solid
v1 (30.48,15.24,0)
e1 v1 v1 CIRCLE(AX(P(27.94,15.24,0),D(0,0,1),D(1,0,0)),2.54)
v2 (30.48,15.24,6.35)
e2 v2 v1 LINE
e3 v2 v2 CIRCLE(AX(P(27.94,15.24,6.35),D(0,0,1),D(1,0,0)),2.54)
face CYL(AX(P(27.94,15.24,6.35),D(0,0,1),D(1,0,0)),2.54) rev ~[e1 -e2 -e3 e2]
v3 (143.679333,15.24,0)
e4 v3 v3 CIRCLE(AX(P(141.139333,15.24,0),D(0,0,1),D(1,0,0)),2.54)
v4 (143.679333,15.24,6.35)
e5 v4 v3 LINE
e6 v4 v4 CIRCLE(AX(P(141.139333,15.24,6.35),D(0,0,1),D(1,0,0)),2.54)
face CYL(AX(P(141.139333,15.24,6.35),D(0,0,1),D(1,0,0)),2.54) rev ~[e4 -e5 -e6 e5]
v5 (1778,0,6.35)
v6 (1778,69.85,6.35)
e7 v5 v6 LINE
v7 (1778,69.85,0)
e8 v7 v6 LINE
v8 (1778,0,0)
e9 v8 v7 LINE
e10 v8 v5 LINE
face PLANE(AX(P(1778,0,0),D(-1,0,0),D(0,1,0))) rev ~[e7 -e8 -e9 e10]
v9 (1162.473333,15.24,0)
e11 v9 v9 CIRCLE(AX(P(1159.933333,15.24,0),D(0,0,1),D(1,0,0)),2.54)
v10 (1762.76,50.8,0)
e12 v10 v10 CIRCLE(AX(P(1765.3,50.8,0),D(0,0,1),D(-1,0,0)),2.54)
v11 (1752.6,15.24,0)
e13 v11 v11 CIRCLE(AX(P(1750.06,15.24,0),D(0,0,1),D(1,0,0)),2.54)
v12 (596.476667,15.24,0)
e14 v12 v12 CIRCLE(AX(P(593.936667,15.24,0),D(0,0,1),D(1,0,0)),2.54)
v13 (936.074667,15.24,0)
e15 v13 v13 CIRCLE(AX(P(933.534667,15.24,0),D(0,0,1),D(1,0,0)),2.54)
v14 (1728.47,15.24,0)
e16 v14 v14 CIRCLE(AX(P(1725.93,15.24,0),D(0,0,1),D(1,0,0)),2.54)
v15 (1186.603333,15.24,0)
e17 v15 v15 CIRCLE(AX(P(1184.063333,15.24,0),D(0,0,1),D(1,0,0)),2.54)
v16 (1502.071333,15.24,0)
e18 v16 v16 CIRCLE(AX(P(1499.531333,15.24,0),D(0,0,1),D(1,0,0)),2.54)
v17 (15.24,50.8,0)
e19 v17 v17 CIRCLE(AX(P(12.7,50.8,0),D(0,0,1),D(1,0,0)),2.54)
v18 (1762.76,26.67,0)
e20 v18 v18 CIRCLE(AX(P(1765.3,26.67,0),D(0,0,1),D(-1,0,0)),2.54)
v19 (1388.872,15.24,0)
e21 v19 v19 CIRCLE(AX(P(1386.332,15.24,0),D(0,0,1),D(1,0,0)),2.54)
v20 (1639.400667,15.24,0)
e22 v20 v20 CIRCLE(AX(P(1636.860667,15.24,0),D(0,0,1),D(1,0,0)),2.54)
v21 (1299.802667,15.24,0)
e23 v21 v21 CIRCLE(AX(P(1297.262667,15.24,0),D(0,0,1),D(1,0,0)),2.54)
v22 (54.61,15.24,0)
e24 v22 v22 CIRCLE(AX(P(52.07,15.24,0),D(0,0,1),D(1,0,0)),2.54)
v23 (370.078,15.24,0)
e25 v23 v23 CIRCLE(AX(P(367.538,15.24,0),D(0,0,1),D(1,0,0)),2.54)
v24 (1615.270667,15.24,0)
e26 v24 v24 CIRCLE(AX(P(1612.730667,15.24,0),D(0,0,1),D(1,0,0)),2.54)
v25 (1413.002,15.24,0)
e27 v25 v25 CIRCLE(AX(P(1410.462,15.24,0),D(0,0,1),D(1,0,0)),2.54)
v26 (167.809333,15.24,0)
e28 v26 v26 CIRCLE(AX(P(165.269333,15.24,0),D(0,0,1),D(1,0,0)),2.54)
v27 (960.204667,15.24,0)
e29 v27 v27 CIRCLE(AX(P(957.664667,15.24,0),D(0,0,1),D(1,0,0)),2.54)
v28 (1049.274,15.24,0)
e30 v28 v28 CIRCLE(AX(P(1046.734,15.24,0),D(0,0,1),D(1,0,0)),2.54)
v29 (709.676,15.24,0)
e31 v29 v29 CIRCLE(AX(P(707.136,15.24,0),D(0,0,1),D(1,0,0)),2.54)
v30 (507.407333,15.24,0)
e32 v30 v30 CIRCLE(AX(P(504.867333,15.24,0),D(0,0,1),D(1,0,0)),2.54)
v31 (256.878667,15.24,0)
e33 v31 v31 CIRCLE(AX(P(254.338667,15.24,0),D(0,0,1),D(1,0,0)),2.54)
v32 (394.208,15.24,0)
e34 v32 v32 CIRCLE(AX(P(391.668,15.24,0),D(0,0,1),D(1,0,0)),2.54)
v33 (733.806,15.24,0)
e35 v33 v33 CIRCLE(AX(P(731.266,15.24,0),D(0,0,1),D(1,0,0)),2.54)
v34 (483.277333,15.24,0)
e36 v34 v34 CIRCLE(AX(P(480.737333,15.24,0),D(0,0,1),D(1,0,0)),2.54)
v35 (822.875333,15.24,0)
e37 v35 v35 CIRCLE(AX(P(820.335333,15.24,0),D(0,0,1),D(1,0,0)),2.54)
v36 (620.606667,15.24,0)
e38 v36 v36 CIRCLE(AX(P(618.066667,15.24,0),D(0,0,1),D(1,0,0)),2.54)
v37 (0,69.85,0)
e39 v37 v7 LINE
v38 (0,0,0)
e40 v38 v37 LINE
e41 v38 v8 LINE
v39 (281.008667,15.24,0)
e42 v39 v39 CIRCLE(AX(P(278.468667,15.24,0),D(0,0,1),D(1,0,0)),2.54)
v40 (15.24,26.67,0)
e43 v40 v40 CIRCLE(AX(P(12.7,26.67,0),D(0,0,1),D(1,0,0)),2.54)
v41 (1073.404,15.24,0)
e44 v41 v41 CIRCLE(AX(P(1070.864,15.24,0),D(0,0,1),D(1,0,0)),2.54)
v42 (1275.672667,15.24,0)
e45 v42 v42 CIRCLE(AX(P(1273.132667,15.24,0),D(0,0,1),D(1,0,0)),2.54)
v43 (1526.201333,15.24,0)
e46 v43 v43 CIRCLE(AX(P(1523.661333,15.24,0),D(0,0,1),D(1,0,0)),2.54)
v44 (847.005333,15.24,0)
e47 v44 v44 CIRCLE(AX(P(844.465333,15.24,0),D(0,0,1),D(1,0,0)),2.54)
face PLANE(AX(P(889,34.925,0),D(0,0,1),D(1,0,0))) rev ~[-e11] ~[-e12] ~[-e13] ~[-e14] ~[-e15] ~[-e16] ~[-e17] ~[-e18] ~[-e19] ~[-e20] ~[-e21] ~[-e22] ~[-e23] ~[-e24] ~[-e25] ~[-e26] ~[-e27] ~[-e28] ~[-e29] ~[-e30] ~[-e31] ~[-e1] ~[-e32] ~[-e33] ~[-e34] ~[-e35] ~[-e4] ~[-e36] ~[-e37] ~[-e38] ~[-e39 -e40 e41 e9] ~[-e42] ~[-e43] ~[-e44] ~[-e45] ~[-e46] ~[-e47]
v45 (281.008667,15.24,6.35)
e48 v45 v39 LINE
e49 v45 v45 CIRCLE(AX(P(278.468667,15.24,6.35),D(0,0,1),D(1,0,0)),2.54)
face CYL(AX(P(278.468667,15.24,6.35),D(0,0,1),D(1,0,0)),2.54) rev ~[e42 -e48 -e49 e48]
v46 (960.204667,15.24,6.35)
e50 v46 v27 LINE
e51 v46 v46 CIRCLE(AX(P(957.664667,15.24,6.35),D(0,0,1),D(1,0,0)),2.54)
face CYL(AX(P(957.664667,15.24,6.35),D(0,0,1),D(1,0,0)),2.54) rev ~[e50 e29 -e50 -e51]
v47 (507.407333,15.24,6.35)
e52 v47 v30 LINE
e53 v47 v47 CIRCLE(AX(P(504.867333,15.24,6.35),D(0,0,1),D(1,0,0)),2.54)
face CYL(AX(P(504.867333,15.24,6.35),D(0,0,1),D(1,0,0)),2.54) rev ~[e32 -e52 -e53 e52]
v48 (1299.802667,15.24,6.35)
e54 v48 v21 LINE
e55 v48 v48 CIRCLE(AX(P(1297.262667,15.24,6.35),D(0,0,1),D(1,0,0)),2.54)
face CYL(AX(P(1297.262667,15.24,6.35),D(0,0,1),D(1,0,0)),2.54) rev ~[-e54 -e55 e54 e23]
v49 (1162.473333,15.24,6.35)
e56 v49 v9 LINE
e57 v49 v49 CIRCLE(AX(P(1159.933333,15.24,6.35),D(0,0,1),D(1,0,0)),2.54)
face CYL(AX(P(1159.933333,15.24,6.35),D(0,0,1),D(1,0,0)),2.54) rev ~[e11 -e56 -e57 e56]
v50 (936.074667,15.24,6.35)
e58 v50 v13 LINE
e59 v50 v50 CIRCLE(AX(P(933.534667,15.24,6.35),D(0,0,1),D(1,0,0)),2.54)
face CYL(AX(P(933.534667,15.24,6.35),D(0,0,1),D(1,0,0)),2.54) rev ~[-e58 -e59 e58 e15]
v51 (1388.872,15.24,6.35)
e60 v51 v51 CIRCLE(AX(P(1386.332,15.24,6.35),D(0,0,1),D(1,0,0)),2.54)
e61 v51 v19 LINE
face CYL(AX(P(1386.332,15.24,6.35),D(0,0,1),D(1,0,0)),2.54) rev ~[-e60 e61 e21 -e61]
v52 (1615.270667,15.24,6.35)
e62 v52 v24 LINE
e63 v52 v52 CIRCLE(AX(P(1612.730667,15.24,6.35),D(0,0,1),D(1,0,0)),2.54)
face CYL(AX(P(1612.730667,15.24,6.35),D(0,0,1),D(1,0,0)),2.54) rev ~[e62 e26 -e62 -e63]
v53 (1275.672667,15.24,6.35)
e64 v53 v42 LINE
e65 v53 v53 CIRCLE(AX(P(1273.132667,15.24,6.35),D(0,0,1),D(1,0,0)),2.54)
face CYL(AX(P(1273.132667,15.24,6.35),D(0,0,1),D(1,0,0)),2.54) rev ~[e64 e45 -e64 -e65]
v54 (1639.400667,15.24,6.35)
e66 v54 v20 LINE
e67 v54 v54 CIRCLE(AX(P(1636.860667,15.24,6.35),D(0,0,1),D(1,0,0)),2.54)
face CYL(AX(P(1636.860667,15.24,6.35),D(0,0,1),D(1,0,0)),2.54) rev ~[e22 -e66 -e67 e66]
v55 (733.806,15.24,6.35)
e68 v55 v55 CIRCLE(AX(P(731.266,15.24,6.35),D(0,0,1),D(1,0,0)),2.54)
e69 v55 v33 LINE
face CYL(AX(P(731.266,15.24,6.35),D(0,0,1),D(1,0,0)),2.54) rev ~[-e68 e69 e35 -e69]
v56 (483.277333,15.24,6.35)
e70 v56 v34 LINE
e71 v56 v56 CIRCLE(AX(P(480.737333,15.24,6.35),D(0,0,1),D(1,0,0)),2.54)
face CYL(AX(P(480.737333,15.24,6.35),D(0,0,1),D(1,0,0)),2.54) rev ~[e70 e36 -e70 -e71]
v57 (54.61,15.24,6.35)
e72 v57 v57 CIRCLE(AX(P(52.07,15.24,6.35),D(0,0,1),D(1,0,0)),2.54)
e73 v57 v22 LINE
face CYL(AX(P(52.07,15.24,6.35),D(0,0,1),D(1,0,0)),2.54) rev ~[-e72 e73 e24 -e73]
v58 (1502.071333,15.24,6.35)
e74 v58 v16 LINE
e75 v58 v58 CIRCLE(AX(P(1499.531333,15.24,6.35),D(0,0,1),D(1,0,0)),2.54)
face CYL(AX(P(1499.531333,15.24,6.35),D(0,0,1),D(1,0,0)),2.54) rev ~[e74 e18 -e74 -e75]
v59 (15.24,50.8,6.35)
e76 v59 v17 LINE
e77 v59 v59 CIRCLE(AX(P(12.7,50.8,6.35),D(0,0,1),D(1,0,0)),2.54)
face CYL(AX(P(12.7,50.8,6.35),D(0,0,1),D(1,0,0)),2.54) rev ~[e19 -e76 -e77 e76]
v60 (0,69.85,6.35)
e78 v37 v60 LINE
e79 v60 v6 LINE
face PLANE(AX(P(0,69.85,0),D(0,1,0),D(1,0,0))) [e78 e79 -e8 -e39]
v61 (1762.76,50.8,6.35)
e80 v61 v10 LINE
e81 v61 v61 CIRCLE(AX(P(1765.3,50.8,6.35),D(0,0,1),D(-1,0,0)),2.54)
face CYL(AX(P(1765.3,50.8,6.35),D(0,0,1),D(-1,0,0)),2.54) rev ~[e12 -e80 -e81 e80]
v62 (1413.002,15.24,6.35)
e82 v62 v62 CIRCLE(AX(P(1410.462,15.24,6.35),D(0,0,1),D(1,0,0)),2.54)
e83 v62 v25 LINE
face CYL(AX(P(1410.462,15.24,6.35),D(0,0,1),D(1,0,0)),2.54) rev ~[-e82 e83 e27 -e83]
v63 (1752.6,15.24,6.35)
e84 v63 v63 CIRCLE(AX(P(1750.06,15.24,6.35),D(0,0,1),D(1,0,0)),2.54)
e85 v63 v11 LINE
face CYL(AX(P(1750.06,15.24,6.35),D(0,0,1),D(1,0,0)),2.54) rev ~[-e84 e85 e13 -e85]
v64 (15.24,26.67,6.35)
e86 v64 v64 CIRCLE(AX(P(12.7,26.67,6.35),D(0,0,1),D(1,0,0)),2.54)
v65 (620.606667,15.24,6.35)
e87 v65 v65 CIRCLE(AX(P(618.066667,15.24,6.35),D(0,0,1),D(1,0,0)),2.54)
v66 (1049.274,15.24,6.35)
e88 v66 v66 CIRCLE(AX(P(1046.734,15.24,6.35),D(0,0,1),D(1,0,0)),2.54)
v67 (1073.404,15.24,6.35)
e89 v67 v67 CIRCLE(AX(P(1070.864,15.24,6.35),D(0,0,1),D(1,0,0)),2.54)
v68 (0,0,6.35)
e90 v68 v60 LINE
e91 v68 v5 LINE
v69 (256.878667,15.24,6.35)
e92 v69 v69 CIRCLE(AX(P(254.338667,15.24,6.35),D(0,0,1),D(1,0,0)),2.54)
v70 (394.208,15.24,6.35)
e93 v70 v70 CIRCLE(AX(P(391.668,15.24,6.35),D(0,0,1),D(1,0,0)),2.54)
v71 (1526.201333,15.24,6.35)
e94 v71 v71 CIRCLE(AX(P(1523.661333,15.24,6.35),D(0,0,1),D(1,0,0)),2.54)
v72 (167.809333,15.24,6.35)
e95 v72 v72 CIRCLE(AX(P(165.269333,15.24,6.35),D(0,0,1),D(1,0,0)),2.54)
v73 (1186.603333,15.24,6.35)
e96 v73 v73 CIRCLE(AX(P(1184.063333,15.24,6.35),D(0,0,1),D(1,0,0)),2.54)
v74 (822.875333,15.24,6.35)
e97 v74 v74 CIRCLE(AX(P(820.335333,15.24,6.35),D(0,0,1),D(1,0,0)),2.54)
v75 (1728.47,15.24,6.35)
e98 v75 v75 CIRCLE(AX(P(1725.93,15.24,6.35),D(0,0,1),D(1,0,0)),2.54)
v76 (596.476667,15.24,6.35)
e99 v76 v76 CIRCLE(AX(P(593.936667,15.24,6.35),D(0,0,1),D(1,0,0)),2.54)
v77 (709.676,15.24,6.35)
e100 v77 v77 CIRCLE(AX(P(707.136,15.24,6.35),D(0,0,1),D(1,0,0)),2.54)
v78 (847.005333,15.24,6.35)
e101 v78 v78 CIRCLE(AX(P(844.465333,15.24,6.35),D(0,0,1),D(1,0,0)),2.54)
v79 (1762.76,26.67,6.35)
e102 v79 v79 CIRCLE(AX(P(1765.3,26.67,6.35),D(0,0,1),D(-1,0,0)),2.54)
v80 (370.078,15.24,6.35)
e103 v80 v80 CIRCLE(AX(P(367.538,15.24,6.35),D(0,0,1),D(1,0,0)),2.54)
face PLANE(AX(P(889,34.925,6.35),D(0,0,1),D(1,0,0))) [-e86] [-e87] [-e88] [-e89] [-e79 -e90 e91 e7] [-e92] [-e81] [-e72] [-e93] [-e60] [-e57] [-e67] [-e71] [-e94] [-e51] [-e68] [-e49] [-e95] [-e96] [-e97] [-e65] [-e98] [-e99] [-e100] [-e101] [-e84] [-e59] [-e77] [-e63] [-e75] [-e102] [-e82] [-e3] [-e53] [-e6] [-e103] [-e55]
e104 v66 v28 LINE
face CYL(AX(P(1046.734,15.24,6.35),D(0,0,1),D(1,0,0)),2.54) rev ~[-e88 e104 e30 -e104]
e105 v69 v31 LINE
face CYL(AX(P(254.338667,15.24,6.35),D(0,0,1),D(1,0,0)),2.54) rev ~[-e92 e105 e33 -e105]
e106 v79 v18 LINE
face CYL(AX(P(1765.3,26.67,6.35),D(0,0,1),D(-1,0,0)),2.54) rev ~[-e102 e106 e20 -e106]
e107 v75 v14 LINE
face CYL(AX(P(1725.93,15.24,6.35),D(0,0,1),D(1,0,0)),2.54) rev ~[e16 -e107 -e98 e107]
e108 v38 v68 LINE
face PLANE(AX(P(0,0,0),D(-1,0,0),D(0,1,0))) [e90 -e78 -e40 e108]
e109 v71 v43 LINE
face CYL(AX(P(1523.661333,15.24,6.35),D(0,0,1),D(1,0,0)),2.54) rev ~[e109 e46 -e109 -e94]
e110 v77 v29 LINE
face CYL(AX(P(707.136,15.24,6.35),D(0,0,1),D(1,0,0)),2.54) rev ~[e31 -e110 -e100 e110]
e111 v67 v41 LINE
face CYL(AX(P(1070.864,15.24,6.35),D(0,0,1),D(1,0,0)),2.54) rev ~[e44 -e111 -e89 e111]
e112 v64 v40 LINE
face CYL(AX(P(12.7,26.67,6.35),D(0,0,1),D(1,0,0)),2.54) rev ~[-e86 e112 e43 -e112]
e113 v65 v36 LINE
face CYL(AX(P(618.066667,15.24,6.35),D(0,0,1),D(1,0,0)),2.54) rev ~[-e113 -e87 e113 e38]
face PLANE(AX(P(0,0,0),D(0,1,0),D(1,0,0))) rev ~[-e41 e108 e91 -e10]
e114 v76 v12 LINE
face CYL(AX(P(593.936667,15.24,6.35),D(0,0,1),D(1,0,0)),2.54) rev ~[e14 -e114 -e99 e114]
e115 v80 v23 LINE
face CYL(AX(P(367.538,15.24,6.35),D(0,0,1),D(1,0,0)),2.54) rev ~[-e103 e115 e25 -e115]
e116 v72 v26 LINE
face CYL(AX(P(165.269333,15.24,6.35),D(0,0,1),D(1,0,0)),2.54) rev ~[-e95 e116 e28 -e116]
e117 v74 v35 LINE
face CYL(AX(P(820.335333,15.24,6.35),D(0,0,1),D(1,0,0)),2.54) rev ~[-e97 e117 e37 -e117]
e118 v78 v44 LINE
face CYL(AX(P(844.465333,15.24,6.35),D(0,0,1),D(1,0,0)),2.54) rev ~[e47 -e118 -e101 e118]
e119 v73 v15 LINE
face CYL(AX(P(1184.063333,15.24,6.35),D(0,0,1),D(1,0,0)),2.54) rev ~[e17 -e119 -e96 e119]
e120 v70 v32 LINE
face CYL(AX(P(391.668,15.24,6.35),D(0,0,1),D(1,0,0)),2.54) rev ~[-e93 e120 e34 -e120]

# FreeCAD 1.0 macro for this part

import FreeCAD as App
import Part
import Sketcher

V = App.Vector
Q = App.Units.Quantity


def add_polygon(sketch, points):
    """Adds a closed chain of lines whose ends are joined by coincident constraints."""
    first, n = sketch.GeometryCount, len(points)
    for a, b in zip(points, points[1:] + points[:1]):
        sketch.addGeometry(Part.LineSegment(App.Vector(*a, 0), App.Vector(*b, 0)), False)
    for i in range(n):
        sketch.addConstraint(Sketcher.Constraint("Coincident", first + i, 2, first + (i + 1) % n, 1))

doc = App.newDocument("Part")
body = doc.addObject("PartDesign::Body", "Body")

# Sketch on XY plane
sketch1 = doc.addObject("Sketcher::SketchObject", "Sketch")
body.addObject(sketch1)
sketch1.AttachmentSupport = (doc.XY_Plane, [""])
sketch1.MapMode = "FlatFace"
add_polygon(sketch1, [(0, 69.85), (0, 0), (1778, 0), (1778, 69.85)])  # lines 0-3
sketch1.addConstraint([
    Sketcher.Constraint("Vertical", 0),
    Sketcher.Constraint("Horizontal", 1),
    Sketcher.Constraint("Vertical", 2),
    Sketcher.Constraint("Horizontal", 3),
    Sketcher.Constraint("Coincident", 0, 2, -1, 1),
    Sketcher.Constraint("DistanceX", 1, 1, 1, 2, Q("70 in")),
    Sketcher.Constraint("DistanceY", 0, 2, 0, 1, Q("2.75 in")),
])
pad1 = doc.addObject("PartDesign::Pad", "Pad")
body.addObject(pad1)
pad1.Profile = sketch1
pad1.Length = Q("0.25 in")

# Sketch on XY plane
sketch2 = doc.addObject("Sketcher::SketchObject", "Sketch001")
body.addObject(sketch2)
sketch2.AttachmentSupport = (doc.XY_Plane, [""])
sketch2.MapMode = "FlatFace"
sketch2.AttachmentOffset = App.Placement(V(0, 0, 0.25 * 25.4), App.Rotation())
sketch2.addGeometry([
    Part.Circle(V(27.94, 15.24, 0), V(0, 0, 1), 2.54),
    Part.Circle(V(52.07, 15.24, 0), V(0, 0, 1), 2.54),
], False)
sketch2.addConstraint([
    Sketcher.Constraint("Equal", 0, 1),
    Sketcher.Constraint("Horizontal", 0, 3, 1, 3),
    Sketcher.Constraint("Diameter", 0, Q("0.2 in")),
    Sketcher.Constraint("DistanceX", -1, 1, 0, 3, Q("1.1 in")),
    Sketcher.Constraint("DistanceY", -1, 1, 0, 3, Q("0.6 in")),
    Sketcher.Constraint("DistanceX", -1, 1, 1, 3, Q("2.05 in")),
])
pocket1 = doc.addObject("PartDesign::Pocket", "Pocket")
body.addObject(pocket1)
pocket1.Profile = sketch2
pocket1.Length = Q("0.25 in")

# Sketch on XY plane
sketch3 = doc.addObject("Sketcher::SketchObject", "Sketch002")
body.addObject(sketch3)
sketch3.AttachmentSupport = (doc.XY_Plane, [""])
sketch3.MapMode = "FlatFace"
sketch3.AttachmentOffset = App.Placement(V(0, 0, 0.25 * 25.4), App.Rotation())
sketch3.addGeometry([
    Part.Circle(V(12.7, 26.67, 0), V(0, 0, 1), 2.54),
    Part.Circle(V(12.7, 50.8, 0), V(0, 0, 1), 2.54),
    Part.Circle(V(1765.3, 26.67, 0), V(0, 0, 1), 2.54),
    Part.Circle(V(1765.3, 50.8, 0), V(0, 0, 1), 2.54),
], False)
sketch3.addConstraint([
    Sketcher.Constraint("Equal", 0, 1),
    Sketcher.Constraint("Equal", 1, 2),
    Sketcher.Constraint("Equal", 2, 3),
    Sketcher.Constraint("Horizontal", 0, 3, 2, 3),
    Sketcher.Constraint("Horizontal", 1, 3, 3, 3),
    Sketcher.Constraint("Vertical", 0, 3, 1, 3),
    Sketcher.Constraint("Vertical", 2, 3, 3, 3),
    Sketcher.Constraint("Diameter", 0, Q("0.2 in")),
    Sketcher.Constraint("DistanceY", -1, 1, 1, 3, Q("2 in")),
    Sketcher.Constraint("DistanceX", 0, 3, 2, 3, Q("69 in")),
    Sketcher.Constraint("DistanceX", -1, 1, 0, 3, Q("0.5 in")),
    Sketcher.Constraint("DistanceY", -1, 1, 0, 3, Q("1.05 in")),
])
pocket2 = doc.addObject("PartDesign::Pocket", "Pocket001")
body.addObject(pocket2)
pocket2.Profile = sketch3
pocket2.Length = Q("0.25 in")
doc.recompute()

linearpattern = doc.addObject("PartDesign::LinearPattern", "LinearPattern")
body.addObject(linearpattern)
linearpattern.Originals = [pocket1]
linearpattern.Direction = (doc.X_Axis, [""])
linearpattern.Mode = "offset"
linearpattern.Offset = 113.199333
linearpattern.Occurrences = 16
body.Tip = linearpattern

doc.recompute()
